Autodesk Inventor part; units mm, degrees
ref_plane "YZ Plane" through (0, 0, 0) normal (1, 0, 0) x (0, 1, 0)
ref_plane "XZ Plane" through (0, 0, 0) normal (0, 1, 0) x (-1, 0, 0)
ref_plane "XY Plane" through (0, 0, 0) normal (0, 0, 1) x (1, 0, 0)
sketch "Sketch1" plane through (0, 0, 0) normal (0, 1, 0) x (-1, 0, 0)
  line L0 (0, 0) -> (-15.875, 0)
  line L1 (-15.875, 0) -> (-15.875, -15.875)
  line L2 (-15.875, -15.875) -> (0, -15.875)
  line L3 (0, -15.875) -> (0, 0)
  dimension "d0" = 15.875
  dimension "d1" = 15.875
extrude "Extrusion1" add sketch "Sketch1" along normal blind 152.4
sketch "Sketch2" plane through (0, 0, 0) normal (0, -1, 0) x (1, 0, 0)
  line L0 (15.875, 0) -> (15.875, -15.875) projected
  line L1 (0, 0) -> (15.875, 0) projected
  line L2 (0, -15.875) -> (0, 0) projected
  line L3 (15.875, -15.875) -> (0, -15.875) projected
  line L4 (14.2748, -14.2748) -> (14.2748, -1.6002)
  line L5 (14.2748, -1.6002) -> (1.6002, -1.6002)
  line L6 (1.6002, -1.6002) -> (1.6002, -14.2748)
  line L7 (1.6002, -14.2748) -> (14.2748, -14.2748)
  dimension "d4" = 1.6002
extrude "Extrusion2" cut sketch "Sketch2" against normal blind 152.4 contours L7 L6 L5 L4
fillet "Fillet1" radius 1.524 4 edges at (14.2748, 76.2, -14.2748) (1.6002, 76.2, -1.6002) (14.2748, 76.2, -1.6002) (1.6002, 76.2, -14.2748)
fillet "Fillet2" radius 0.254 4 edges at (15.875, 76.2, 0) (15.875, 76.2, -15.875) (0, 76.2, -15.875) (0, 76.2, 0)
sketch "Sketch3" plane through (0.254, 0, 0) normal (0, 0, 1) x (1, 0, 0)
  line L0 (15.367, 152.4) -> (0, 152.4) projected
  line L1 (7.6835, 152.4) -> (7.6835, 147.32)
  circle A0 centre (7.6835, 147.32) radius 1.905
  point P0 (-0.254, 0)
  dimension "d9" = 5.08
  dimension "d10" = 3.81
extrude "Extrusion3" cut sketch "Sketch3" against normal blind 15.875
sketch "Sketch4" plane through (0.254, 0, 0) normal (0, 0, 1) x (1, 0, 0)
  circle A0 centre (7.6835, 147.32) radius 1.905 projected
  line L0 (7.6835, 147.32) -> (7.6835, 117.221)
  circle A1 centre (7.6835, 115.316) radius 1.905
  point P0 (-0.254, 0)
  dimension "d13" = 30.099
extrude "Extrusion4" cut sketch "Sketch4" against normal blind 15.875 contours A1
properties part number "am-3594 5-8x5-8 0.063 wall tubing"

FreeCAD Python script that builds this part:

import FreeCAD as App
import Part
import Sketcher

V = App.Vector
Q = App.Units.Quantity


def edges_at(feature, points):
    """Names of the edges that pass closest to the given points."""
    edges = feature.Shape.Edges
    near = lambda p: min(range(len(edges)), key=lambda i: edges[i].distToShape(Part.Vertex(*p))[0])
    return sorted({f"Edge{near(p) + 1}" for p in points})

doc = App.newDocument("Part")
body = doc.addObject("PartDesign::Body", "Body")

# Sketch on XZ plane
sketch1 = doc.addObject("Sketcher::SketchObject", "Sketch")
body.addObject(sketch1)
sketch1.AttachmentSupport = (doc.XZ_Plane, [""])
sketch1.MapMode = "FlatFace"
sketch1.addGeometry([
    Part.LineSegment(V(0, -15.875, 0), V(0, 0, 0)),
    Part.LineSegment(V(0, 0, 0), V(15.875, 0, 0)),
    Part.LineSegment(V(15.875, 0, 0), V(15.875, -15.875, 0)),
    Part.LineSegment(V(15.875, -15.875, 0), V(0, -15.875, 0)),
], False)
sketch1.addConstraint([
    Sketcher.Constraint("Coincident", 0, 2, 1, 1),
    Sketcher.Constraint("Coincident", 1, 2, 2, 1),
    Sketcher.Constraint("Coincident", 2, 2, 3, 1),
    Sketcher.Constraint("Coincident", 3, 2, 0, 1),
    Sketcher.Constraint("Vertical", 0),
    Sketcher.Constraint("Horizontal", 1),
    Sketcher.Constraint("Vertical", 2),
    Sketcher.Constraint("Horizontal", 3),
    Sketcher.Constraint("Coincident", 0, 2, -1, 1),
    Sketcher.Constraint("Equal", 3, 0),
    Sketcher.Constraint("DistanceX", 1, 1, 1, 2, Q("0.625 in")),
])
pad1 = doc.addObject("PartDesign::Pad", "Pad")
body.addObject(pad1)
pad1.Profile = sketch1
pad1.Length = Q("6 in")
pad1.Reversed = True

# Sketch on XZ plane
sketch2 = doc.addObject("Sketcher::SketchObject", "Sketch001")
body.addObject(sketch2)
sketch2.AttachmentSupport = (doc.XZ_Plane, [""])
sketch2.MapMode = "FlatFace"
sketch2.addGeometry([
    Part.LineSegment(V(1.6002, -14.2748, 0), V(14.2748, -14.2748, 0)),
    Part.LineSegment(V(14.2748, -14.2748, 0), V(14.2748, -1.6002, 0)),
    Part.LineSegment(V(14.2748, -1.6002, 0), V(1.6002, -1.6002, 0)),
    Part.LineSegment(V(1.6002, -1.6002, 0), V(1.6002, -14.2748, 0)),
], False)
sketch2.addConstraint([
    Sketcher.Constraint("Coincident", 0, 2, 1, 1),
    Sketcher.Constraint("Coincident", 1, 2, 2, 1),
    Sketcher.Constraint("Coincident", 2, 2, 3, 1),
    Sketcher.Constraint("Coincident", 3, 2, 0, 1),
    Sketcher.Constraint("Horizontal", 0),
    Sketcher.Constraint("Vertical", 1),
    Sketcher.Constraint("Horizontal", 2),
    Sketcher.Constraint("Vertical", 3),
    Sketcher.Constraint("Equal", 2, 1),
    Sketcher.Constraint("DistanceY", 1, 2, -1, 1, Q("0.063 in")),
    Sketcher.Constraint("DistanceX", -1, 1, 2, 2, Q("0.063 in")),
    Sketcher.Constraint("DistanceX", 0, 1, 0, 2, Q("0.499 in")),
])
pocket1 = doc.addObject("PartDesign::Pocket", "Pocket")
body.addObject(pocket1)
pocket1.Profile = sketch2
pocket1.Length = Q("6 in")
doc.recompute()

fillet = doc.addObject("PartDesign::Fillet", "Fillet")
body.addObject(fillet)
fillet.Base = (pocket1, edges_at(pocket1, [
    (14.275, 76.2, -14.275),
    (1.6, 76.2, -1.6),
    (14.275, 76.2, -1.6),
    (1.6, 76.2, -14.275),
]))
fillet.Radius = Q("0.06 in")
doc.recompute()

fillet2 = doc.addObject("PartDesign::Fillet", "Fillet001")
body.addObject(fillet2)
fillet2.Base = (fillet, edges_at(fillet, [
    (15.875, 76.2, 0),
    (15.875, 76.2, -15.875),
    (0, 76.2, -15.875),
    (0, 76.2, 0),
]))
fillet2.Radius = Q("0.01 in")

# Sketch on XY plane
sketch3 = doc.addObject("Sketcher::SketchObject", "Sketch002")
body.addObject(sketch3)
sketch3.AttachmentSupport = (doc.XY_Plane, [""])
sketch3.MapMode = "FlatFace"
sketch3.addGeometry(Part.Circle(V(7.9375, 147.32, 0), V(0, 0, 1), 1.905), False)
sketch3.addConstraint([
    Sketcher.Constraint("Diameter", 0, Q("0.15 in")),
    Sketcher.Constraint("DistanceY", -1, 1, 0, 3, Q("5.8 in")),
    Sketcher.Constraint("DistanceX", -1, 1, 0, 3, Q("0.3125 in")),
])
pocket2 = doc.addObject("PartDesign::Pocket", "Pocket001")
body.addObject(pocket2)
pocket2.Profile = sketch3
pocket2.Length = Q("0.625 in")

# Sketch on XY plane
sketch4 = doc.addObject("Sketcher::SketchObject", "Sketch003")
body.addObject(sketch4)
sketch4.AttachmentSupport = (doc.XY_Plane, [""])
sketch4.MapMode = "FlatFace"
sketch4.addGeometry(Part.Circle(V(7.9375, 115.316, 0), V(0, 0, 1), 1.905), False)
sketch4.addConstraint([
    Sketcher.Constraint("Diameter", 0, Q("0.15 in")),
    Sketcher.Constraint("DistanceY", -1, 1, 0, 3, Q("4.54 in")),
    Sketcher.Constraint("DistanceX", -1, 1, 0, 3, Q("0.3125 in")),
])
pocket3 = doc.addObject("PartDesign::Pocket", "Pocket002")
body.addObject(pocket3)
pocket3.Profile = sketch4
pocket3.Length = Q("0.625 in")

doc.recompute()
